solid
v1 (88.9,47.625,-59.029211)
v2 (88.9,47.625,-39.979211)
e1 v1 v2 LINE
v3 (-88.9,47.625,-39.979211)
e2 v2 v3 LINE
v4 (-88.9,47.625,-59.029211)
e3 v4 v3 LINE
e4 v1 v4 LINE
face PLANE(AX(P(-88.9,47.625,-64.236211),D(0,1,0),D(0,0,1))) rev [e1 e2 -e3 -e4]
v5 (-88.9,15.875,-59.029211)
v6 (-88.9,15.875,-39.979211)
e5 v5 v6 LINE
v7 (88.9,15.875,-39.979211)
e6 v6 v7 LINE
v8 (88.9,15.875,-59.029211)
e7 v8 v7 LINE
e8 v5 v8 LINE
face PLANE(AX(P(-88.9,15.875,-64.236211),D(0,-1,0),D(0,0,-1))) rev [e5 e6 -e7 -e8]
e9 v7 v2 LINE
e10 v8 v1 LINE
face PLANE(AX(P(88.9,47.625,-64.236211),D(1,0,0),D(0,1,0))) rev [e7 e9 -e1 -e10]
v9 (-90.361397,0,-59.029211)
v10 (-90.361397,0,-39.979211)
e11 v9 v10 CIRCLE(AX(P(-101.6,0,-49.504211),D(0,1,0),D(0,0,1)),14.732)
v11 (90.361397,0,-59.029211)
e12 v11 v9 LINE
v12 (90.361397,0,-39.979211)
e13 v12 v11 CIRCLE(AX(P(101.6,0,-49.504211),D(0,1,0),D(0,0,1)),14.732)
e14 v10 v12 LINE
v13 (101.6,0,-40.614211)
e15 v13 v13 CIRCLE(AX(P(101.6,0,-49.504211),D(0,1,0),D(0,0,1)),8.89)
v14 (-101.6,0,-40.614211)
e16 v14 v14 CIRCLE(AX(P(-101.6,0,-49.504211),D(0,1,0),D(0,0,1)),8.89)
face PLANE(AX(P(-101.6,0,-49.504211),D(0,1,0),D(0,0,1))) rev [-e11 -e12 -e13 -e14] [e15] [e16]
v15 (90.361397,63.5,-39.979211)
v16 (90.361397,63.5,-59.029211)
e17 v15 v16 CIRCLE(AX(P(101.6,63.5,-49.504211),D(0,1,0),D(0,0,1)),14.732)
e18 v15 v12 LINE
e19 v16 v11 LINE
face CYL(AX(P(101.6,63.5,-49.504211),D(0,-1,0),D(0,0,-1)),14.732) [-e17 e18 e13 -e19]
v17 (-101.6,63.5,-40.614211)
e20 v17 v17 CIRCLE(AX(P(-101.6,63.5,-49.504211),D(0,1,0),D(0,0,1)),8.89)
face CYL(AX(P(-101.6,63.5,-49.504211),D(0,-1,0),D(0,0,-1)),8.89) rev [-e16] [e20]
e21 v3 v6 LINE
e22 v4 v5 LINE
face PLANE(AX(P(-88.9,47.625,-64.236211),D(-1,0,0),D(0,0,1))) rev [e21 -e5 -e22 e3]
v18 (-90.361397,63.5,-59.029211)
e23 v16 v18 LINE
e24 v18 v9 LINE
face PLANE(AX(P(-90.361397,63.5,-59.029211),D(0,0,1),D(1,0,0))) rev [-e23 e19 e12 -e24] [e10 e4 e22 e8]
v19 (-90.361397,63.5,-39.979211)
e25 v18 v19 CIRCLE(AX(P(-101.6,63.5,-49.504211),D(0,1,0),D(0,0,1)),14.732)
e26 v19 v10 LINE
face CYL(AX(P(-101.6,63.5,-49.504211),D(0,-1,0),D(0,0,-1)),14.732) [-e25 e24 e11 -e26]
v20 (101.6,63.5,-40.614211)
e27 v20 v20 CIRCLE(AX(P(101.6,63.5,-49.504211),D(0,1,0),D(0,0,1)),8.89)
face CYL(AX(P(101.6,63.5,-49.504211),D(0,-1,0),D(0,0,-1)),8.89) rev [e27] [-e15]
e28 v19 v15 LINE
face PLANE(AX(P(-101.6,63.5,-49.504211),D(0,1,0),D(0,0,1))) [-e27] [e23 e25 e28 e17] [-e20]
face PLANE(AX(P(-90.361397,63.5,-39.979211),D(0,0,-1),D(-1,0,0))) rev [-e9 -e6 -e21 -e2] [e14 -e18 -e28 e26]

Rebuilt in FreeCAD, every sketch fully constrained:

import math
import FreeCAD as App
import Part
import Sketcher
Q = App.Units.Quantity


def add_polygon(sketch, points):
    """Adds a closed chain of lines whose ends are joined by coincident constraints."""
    first, n = sketch.GeometryCount, len(points)
    for a, b in zip(points, points[1:] + points[:1]):
        sketch.addGeometry(Part.LineSegment(App.Vector(*a, 0), App.Vector(*b, 0)), False)
    for i in range(n):
        sketch.addConstraint(Sketcher.Constraint("Coincident", first + i, 2, first + (i + 1) % n, 1))

doc = App.newDocument("Part")
body = doc.addObject("PartDesign::Body", "Body")

# Sketch on XZ plane
sketch1 = body.newObject("Sketcher::SketchObject", "Sketch")
sketch1.AttachmentSupport = (doc.getObject("XZ_Plane"), [""])
sketch1.MapMode = "FlatFace"
sketch1.addGeometry(Part.LineSegment(App.Vector(90.361397, -59.029211, 0), App.Vector(-90.361397, -59.029211, 0)), False)
sketch1.addGeometry(Part.ArcOfCircle(Part.Circle(App.Vector(-101.6, -49.504211, 0), App.Vector(0, 0, 1), 14.732), math.radians(40.282118), math.radians(319.717882)), False)
sketch1.addGeometry(Part.LineSegment(App.Vector(-90.361397, -39.979211, 0), App.Vector(90.361397, -39.979211, 0)), False)
sketch1.addGeometry(Part.ArcOfCircle(Part.Circle(App.Vector(101.6, -49.504211, 0), App.Vector(0, 0, 1), 14.732), math.radians(-139.717882), math.radians(139.717882)), False)
sketch1.addGeometry(Part.Circle(App.Vector(101.6, -49.504211, 0), App.Vector(0, 0, 1), 8.89), False)
sketch1.addGeometry(Part.Circle(App.Vector(-101.6, -49.504211, 0), App.Vector(0, 0, 1), 8.89), False)
sketch1.addConstraint(Sketcher.Constraint("Coincident", 0, 2, 1, 2))
sketch1.addConstraint(Sketcher.Constraint("Coincident", 1, 1, 2, 1))
sketch1.addConstraint(Sketcher.Constraint("Coincident", 2, 2, 3, 2))
sketch1.addConstraint(Sketcher.Constraint("Coincident", 3, 1, 0, 1))
sketch1.addConstraint(Sketcher.Constraint("Horizontal", 0))
sketch1.addConstraint(Sketcher.Constraint("Horizontal", 2))
sketch1.addConstraint(Sketcher.Constraint("Coincident", 4, 3, 3, 3))
sketch1.addConstraint(Sketcher.Constraint("Coincident", 5, 3, 1, 3))
sketch1.addConstraint(Sketcher.Constraint("Equal", 1, 3))
sketch1.addConstraint(Sketcher.Constraint("Equal", 4, 5))
sketch1.addConstraint(Sketcher.Constraint("Symmetric", 1, 3, 3, 3, -2))
sketch1.addConstraint(Sketcher.Constraint("Vertical", 0, 2, 1, 1))
sketch1.addConstraint(Sketcher.Constraint("Diameter", 4, Q("0.7 in")))
sketch1.addConstraint(Sketcher.Constraint("Radius", 1, Q("0.58 in")))
sketch1.addConstraint(Sketcher.Constraint("DistanceX", 1, 3, -1, 1, Q("4 in")))
sketch1.addConstraint(Sketcher.Constraint("DistanceY", 0, 2, 1, 1, Q("0.75 in")))
sketch1.addConstraint(Sketcher.Constraint("DistanceY", 1, 3, -1, 1, Q("49.504211 mm")))
pad1 = body.newObject("PartDesign::Pad", "Pad")
pad1.Profile = sketch1
pad1.Length = Q("2.5 in")
pad1.Reversed = True

# Sketch on XY plane
sketch2 = body.newObject("Sketcher::SketchObject", "Sketch001")
sketch2.AttachmentSupport = (doc.getObject("XY_Plane"), [""])
sketch2.MapMode = "FlatFace"
sketch2.AttachmentOffset = App.Placement(App.Vector(0, 0, -39.979211), App.Rotation())
add_polygon(sketch2, [(-88.9, 47.625), (-88.9, 15.875), (88.9, 15.875), (88.9, 47.625)])  # lines 0-3
sketch2.addConstraint(Sketcher.Constraint("Vertical", 0))
sketch2.addConstraint(Sketcher.Constraint("Horizontal", 1))
sketch2.addConstraint(Sketcher.Constraint("Vertical", 2))
sketch2.addConstraint(Sketcher.Constraint("Horizontal", 3))
sketch2.addConstraint(Sketcher.Constraint("DistanceX", 1, 1, 1, 2, Q("7 in")))
sketch2.addConstraint(Sketcher.Constraint("DistanceY", 0, 2, 0, 1, Q("1.25 in")))
sketch2.addConstraint(Sketcher.Constraint("DistanceX", 0, 2, -1, 1, Q("3.5 in")))
sketch2.addConstraint(Sketcher.Constraint("DistanceY", -1, 1, 0, 2, Q("0.625 in")))
pocket1 = body.newObject("PartDesign::Pocket", "Pocket")
pocket1.Profile = sketch2
pocket1.Type = "ThroughAll"

doc.recompute()
